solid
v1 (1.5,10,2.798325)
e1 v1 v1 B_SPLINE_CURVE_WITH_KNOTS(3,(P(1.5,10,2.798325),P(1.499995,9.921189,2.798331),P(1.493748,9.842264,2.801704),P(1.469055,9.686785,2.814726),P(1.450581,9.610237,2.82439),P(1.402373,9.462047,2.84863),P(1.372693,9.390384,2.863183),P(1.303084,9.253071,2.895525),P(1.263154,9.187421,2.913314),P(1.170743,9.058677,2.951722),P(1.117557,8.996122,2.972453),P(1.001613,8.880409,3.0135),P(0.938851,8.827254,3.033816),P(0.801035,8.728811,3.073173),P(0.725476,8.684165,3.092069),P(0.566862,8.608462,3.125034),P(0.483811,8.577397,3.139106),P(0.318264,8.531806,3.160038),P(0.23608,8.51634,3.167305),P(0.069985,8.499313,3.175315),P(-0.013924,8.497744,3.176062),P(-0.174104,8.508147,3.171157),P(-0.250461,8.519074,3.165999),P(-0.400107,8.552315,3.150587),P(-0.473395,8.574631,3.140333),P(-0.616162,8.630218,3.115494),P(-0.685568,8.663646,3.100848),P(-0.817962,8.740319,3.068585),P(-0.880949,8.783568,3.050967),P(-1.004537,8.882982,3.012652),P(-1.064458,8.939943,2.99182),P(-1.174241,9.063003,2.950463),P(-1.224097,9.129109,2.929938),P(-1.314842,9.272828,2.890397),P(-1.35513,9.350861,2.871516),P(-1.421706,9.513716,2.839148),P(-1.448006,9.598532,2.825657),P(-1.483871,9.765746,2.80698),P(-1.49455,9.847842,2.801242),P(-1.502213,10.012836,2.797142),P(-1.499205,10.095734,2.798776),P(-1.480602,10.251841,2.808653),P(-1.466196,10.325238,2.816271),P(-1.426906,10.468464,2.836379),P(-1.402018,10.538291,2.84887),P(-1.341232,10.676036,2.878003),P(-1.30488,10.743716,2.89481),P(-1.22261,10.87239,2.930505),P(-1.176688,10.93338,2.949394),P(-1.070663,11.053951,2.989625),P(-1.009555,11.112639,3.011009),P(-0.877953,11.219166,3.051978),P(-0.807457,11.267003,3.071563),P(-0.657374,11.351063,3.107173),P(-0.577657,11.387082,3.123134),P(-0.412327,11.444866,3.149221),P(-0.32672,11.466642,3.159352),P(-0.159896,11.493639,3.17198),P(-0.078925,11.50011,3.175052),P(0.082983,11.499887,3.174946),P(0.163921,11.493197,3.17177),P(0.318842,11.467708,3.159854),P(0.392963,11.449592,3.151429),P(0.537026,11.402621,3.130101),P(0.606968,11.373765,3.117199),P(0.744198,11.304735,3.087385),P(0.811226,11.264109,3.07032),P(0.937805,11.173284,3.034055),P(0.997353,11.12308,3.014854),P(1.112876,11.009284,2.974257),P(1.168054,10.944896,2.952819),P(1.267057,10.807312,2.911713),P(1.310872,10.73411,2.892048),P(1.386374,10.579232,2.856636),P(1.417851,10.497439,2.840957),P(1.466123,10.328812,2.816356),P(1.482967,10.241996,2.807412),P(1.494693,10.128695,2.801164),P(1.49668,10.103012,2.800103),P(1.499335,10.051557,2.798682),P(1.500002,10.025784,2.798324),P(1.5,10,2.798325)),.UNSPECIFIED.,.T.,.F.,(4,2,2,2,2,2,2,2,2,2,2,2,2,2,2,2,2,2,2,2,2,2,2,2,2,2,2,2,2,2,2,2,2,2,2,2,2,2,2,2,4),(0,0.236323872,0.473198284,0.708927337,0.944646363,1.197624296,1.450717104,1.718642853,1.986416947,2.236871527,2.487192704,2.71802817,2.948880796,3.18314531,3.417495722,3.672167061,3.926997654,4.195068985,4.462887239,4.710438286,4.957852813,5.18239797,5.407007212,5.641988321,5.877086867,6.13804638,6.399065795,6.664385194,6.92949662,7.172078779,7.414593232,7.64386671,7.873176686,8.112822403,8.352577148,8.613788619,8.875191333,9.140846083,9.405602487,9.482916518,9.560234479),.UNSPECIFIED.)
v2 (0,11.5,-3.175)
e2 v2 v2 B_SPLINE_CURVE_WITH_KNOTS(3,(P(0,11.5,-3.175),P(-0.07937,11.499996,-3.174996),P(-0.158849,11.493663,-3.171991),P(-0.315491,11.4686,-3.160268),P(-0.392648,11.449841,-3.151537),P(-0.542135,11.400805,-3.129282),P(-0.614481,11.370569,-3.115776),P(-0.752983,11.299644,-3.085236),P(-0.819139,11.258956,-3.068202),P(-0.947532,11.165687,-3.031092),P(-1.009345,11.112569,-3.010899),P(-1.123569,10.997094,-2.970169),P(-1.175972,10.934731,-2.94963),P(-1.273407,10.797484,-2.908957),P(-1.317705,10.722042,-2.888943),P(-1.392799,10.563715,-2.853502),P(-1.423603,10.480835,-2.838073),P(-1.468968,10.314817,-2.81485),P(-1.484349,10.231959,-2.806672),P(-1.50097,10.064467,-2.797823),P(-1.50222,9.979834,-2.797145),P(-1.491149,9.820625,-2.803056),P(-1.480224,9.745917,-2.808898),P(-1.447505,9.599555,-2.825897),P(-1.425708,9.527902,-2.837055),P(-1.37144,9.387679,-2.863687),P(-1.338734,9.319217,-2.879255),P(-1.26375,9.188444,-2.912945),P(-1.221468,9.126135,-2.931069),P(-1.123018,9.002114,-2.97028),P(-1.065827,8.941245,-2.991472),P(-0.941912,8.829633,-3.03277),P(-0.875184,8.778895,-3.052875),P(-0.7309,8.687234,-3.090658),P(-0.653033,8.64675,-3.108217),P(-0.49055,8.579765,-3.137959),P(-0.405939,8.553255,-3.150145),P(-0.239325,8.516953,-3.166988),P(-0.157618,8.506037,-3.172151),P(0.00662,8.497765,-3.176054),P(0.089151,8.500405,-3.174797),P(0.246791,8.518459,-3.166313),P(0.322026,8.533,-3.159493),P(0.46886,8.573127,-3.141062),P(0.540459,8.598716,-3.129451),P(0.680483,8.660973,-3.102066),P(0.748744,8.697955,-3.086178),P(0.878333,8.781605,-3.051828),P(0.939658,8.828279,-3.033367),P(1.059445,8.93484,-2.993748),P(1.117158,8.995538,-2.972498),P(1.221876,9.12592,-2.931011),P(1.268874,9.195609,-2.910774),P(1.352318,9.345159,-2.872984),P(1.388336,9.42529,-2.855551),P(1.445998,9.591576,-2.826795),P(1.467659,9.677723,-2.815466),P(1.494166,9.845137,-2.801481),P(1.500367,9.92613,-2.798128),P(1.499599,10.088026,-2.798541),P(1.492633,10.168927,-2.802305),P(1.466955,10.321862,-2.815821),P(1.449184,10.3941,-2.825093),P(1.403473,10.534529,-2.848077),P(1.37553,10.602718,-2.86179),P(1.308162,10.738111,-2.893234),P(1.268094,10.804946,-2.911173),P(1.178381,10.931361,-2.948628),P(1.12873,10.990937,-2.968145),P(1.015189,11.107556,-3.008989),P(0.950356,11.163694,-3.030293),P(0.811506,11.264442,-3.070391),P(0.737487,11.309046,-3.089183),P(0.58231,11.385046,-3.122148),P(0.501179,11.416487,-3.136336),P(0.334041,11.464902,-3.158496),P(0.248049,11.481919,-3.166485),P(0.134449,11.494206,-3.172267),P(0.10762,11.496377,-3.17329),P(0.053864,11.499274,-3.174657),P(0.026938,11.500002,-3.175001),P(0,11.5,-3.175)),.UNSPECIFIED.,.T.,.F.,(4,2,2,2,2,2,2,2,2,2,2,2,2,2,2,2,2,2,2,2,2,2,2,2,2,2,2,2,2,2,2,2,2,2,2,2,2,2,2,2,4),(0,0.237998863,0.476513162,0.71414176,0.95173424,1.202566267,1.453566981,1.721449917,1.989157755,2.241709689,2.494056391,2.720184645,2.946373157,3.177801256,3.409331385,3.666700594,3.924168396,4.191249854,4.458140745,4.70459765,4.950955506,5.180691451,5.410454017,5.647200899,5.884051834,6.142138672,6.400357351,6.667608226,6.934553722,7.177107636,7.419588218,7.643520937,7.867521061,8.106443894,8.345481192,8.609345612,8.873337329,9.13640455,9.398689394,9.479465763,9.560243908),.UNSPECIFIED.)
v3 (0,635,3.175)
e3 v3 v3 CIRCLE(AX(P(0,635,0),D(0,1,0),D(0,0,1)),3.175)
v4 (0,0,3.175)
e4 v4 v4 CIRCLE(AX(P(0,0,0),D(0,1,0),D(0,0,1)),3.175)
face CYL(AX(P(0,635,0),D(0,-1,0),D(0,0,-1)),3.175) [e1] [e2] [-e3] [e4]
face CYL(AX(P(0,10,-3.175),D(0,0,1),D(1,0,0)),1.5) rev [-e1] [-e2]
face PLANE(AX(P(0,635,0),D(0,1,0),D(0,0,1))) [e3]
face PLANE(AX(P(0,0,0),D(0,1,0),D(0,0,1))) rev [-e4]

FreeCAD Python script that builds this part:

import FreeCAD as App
import Part
import Sketcher
Q = App.Units.Quantity

doc = App.newDocument("Part")
body = doc.addObject("PartDesign::Body", "Body")

sketch1 = body.newObject("Sketcher::SketchObject", "Sketch")
sketch1.AttachmentSupport = (doc.getObject("XZ_Plane"), [""])
sketch1.MapMode = "FlatFace"
sketch1.addGeometry(Part.Circle(App.Vector(0, 0, 0), App.Vector(0, 0, 1), 3.2), False)
sketch1.addConstraint([
    Sketcher.Constraint("Coincident", 0, 3, -1, 1),
    Sketcher.Constraint("Diameter", 0, Q("0.25 in")),
])
pad1 = body.newObject("PartDesign::Pad", "Pad")
pad1.Profile = sketch1
pad1.Length = Q("25 in")
pad1.Reversed = True

sketch2 = body.newObject("Sketcher::SketchObject", "Sketch001")
sketch2.AttachmentSupport = (doc.getObject("XY_Plane"), [""])
sketch2.MapMode = "FlatFace"
sketch2.addGeometry(Part.Circle(App.Vector(0, 10, 0), App.Vector(0, 0, 1), 1.5), False)
sketch2.addConstraint([
    Sketcher.Constraint("PointOnObject", 0, 3, -2),
    Sketcher.Constraint("Diameter", 0, Q("3 mm")),
    Sketcher.Constraint("DistanceY", -1, 1, 0, 3, Q("10 mm")),
])
pocket1 = body.newObject("PartDesign::Pocket", "Pocket")
pocket1.Profile = sketch2
pocket1.Type = "ThroughAll"
pocket1.Midplane = True

doc.recompute()
